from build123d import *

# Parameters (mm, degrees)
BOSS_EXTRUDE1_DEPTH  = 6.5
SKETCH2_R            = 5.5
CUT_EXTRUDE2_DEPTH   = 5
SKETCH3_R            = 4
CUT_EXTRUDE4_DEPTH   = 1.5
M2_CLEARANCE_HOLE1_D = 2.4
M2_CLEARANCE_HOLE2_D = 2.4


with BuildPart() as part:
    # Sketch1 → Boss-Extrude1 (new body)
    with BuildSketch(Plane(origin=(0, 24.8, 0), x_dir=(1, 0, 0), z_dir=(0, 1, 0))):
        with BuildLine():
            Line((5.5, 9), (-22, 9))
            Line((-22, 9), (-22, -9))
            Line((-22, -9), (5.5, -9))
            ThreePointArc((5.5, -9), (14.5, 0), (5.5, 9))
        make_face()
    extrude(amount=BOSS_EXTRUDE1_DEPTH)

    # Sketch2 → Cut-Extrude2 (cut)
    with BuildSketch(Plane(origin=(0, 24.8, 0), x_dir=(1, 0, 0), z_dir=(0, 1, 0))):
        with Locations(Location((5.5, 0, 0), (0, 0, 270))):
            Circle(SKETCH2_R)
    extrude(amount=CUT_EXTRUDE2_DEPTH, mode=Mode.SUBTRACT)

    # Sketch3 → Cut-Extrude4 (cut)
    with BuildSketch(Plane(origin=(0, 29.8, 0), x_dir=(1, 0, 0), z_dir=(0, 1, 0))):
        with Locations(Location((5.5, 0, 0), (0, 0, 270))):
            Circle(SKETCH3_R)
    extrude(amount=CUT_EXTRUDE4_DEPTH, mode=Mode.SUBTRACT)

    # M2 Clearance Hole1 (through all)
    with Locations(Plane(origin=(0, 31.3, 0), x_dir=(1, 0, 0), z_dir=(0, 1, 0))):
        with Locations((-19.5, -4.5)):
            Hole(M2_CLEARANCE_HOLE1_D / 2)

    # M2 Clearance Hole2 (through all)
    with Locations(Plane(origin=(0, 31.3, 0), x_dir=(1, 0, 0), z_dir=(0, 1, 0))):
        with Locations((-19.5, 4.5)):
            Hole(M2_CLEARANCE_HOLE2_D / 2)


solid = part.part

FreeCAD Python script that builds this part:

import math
import FreeCAD as App
import Part
import Sketcher
Q = App.Units.Quantity

doc = App.newDocument("Part")
params = doc.addObject("Spreadsheet::Sheet", "Params")
for row, (alias, value) in enumerate([
    ("sketch1_radius", "9 mm"),
    ("sketch1_width", "27.5 mm"),
    ("pad1_length", "6.5 mm"),
    ("sketch2_diameter", "11 mm"),
    ("pocket1_length", "5 mm"),
    ("sketch3_diameter", "8 mm"),
    ("pocket2_length", "1.5 mm"),
    ("sketch4_diameter", "2.4 mm"),
    ("hole_diameter", "2.4 mm"),
    ("sketch5_diameter", "2.4 mm"),
    ("hole2_diameter", "2.4 mm"),
], start=1):
    params.set(f"A{row}", alias)
    params.set(f"B{row}", "=" + value)
    params.setAlias(f"B{row}", alias)

body = doc.addObject("PartDesign::Body", "Body")

sketch1 = body.newObject("Sketcher::SketchObject", "Sketch")
sketch1.AttachmentSupport = (doc.getObject("XZ_Plane"), [""])
sketch1.MapMode = "FlatFace"
sketch1.AttachmentOffset = App.Placement(App.Vector(0, 0, -24.8), App.Rotation())
sketch1.addGeometry([
    Part.LineSegment(App.Vector(6, -9, 0), App.Vector(-22, -9, 0)),
    Part.LineSegment(App.Vector(-22, -9, 0), App.Vector(-22, 9, 0)),
    Part.LineSegment(App.Vector(-22, 9, 0), App.Vector(6, 9, 0)),
    Part.ArcOfCircle(Part.Circle(App.Vector(6, 0, 0), App.Vector(0, 0, 1), 9), math.radians(-90), math.radians(90)),
], False)
sketch1.addConstraint([
    Sketcher.Constraint("Coincident", 0, 2, 1, 1),
    Sketcher.Constraint("Coincident", 1, 2, 2, 1),
    Sketcher.Constraint("Tangent", 2, 2, 3, 2),
    Sketcher.Constraint("Tangent", 3, 1, 0, 1),
    Sketcher.Constraint("Horizontal", 0),
    Sketcher.Constraint("Vertical", 1),
    Sketcher.Constraint("Horizontal", 2),
    Sketcher.Constraint("PointOnObject", 3, 3, -1),
    Sketcher.Constraint("Radius", 3, Q("9 mm")),
    Sketcher.Constraint("DistanceX", 0, 2, 0, 1, Q("27.5 mm")),
    Sketcher.Constraint("DistanceX", 0, 2, -1, 1, Q("22 mm")),
])
sketch1.setExpression("Constraints[8]", "Params.sketch1_radius")
sketch1.setExpression("Constraints[9]", "Params.sketch1_width")
pad1 = body.newObject("PartDesign::Pad", "Pad")
pad1.Profile = sketch1
pad1.setExpression("Length", "Params.pad1_length")
pad1.Reversed = True

sketch2 = body.newObject("Sketcher::SketchObject", "Sketch001")
sketch2.AttachmentSupport = (doc.getObject("XZ_Plane"), [""])
sketch2.MapMode = "FlatFace"
sketch2.AttachmentOffset = App.Placement(App.Vector(0, 0, -24.8), App.Rotation())
sketch2.addGeometry(Part.Circle(App.Vector(6, 0, 0), App.Vector(0, 0, 1), 6), False)
sketch2.addConstraint([
    Sketcher.Constraint("PointOnObject", 0, 3, -1),
    Sketcher.Constraint("Diameter", 0, Q("11 mm")),
    Sketcher.Constraint("DistanceX", -1, 1, 0, 3, Q("5.5 mm")),
])
sketch2.setExpression("Constraints[1]", "Params.sketch2_diameter")
pocket1 = body.newObject("PartDesign::Pocket", "Pocket")
pocket1.Profile = sketch2
pocket1.setExpression("Length", "Params.pocket1_length")

sketch3 = body.newObject("Sketcher::SketchObject", "Sketch002")
sketch3.AttachmentSupport = (doc.getObject("XZ_Plane"), [""])
sketch3.MapMode = "FlatFace"
sketch3.AttachmentOffset = App.Placement(App.Vector(0, 0, -29.8), App.Rotation())
sketch3.addGeometry(Part.Circle(App.Vector(5.5, 0, 0), App.Vector(0, 0, 1), 4), False)
sketch3.addConstraint([
    Sketcher.Constraint("PointOnObject", 0, 3, -1),
    Sketcher.Constraint("Diameter", 0, Q("8 mm")),
    Sketcher.Constraint("DistanceX", -1, 1, 0, 3, Q("5.5 mm")),
])
sketch3.setExpression("Constraints[1]", "Params.sketch3_diameter")
pocket2 = body.newObject("PartDesign::Pocket", "Pocket001")
pocket2.Profile = sketch3
pocket2.setExpression("Length", "Params.pocket2_length")

sketch4 = body.newObject("Sketcher::SketchObject", "Sketch003")
sketch4.AttachmentSupport = (doc.getObject("XZ_Plane"), [""])
sketch4.MapMode = "FlatFace"
sketch4.AttachmentOffset = App.Placement(App.Vector(0, 0, -31.3), App.Rotation())
sketch4.addGeometry(Part.Circle(App.Vector(-19.5, 4.5, 0), App.Vector(0, 0, 1), 1.2), False)
sketch4.addConstraint([
    Sketcher.Constraint("Diameter", 0, Q("2.4 mm")),
    Sketcher.Constraint("DistanceX", 0, 3, -1, 1, Q("19.5 mm")),
    Sketcher.Constraint("DistanceY", -1, 1, 0, 3, Q("4.5 mm")),
])
sketch4.setExpression("Constraints[0]", "Params.sketch4_diameter")
doc.recompute()
hole = body.newObject("PartDesign::Hole", "Hole")
hole.Profile = sketch4
hole.ThreadType = "None"
hole.setExpression("Diameter", "Params.hole_diameter")
hole.DepthType = "ThroughAll"
hole.Reversed = True

sketch5 = body.newObject("Sketcher::SketchObject", "Sketch004")
sketch5.AttachmentSupport = (doc.getObject("XZ_Plane"), [""])
sketch5.MapMode = "FlatFace"
sketch5.AttachmentOffset = App.Placement(App.Vector(0, 0, -31.3), App.Rotation())
sketch5.addGeometry(Part.Circle(App.Vector(-19.5, -4.5, 0), App.Vector(0, 0, 1), 1.2), False)
sketch5.addConstraint([
    Sketcher.Constraint("Diameter", 0, Q("2.4 mm")),
    Sketcher.Constraint("DistanceX", 0, 3, -1, 1, Q("19.5 mm")),
    Sketcher.Constraint("DistanceY", 0, 3, -1, 1, Q("4.5 mm")),
])
sketch5.setExpression("Constraints[0]", "Params.sketch5_diameter")
doc.recompute()
hole2 = body.newObject("PartDesign::Hole", "Hole001")
hole2.Profile = sketch5
hole2.ThreadType = "None"
hole2.setExpression("Diameter", "Params.hole2_diameter")
hole2.DepthType = "ThroughAll"
hole2.Reversed = True

doc.recompute()
